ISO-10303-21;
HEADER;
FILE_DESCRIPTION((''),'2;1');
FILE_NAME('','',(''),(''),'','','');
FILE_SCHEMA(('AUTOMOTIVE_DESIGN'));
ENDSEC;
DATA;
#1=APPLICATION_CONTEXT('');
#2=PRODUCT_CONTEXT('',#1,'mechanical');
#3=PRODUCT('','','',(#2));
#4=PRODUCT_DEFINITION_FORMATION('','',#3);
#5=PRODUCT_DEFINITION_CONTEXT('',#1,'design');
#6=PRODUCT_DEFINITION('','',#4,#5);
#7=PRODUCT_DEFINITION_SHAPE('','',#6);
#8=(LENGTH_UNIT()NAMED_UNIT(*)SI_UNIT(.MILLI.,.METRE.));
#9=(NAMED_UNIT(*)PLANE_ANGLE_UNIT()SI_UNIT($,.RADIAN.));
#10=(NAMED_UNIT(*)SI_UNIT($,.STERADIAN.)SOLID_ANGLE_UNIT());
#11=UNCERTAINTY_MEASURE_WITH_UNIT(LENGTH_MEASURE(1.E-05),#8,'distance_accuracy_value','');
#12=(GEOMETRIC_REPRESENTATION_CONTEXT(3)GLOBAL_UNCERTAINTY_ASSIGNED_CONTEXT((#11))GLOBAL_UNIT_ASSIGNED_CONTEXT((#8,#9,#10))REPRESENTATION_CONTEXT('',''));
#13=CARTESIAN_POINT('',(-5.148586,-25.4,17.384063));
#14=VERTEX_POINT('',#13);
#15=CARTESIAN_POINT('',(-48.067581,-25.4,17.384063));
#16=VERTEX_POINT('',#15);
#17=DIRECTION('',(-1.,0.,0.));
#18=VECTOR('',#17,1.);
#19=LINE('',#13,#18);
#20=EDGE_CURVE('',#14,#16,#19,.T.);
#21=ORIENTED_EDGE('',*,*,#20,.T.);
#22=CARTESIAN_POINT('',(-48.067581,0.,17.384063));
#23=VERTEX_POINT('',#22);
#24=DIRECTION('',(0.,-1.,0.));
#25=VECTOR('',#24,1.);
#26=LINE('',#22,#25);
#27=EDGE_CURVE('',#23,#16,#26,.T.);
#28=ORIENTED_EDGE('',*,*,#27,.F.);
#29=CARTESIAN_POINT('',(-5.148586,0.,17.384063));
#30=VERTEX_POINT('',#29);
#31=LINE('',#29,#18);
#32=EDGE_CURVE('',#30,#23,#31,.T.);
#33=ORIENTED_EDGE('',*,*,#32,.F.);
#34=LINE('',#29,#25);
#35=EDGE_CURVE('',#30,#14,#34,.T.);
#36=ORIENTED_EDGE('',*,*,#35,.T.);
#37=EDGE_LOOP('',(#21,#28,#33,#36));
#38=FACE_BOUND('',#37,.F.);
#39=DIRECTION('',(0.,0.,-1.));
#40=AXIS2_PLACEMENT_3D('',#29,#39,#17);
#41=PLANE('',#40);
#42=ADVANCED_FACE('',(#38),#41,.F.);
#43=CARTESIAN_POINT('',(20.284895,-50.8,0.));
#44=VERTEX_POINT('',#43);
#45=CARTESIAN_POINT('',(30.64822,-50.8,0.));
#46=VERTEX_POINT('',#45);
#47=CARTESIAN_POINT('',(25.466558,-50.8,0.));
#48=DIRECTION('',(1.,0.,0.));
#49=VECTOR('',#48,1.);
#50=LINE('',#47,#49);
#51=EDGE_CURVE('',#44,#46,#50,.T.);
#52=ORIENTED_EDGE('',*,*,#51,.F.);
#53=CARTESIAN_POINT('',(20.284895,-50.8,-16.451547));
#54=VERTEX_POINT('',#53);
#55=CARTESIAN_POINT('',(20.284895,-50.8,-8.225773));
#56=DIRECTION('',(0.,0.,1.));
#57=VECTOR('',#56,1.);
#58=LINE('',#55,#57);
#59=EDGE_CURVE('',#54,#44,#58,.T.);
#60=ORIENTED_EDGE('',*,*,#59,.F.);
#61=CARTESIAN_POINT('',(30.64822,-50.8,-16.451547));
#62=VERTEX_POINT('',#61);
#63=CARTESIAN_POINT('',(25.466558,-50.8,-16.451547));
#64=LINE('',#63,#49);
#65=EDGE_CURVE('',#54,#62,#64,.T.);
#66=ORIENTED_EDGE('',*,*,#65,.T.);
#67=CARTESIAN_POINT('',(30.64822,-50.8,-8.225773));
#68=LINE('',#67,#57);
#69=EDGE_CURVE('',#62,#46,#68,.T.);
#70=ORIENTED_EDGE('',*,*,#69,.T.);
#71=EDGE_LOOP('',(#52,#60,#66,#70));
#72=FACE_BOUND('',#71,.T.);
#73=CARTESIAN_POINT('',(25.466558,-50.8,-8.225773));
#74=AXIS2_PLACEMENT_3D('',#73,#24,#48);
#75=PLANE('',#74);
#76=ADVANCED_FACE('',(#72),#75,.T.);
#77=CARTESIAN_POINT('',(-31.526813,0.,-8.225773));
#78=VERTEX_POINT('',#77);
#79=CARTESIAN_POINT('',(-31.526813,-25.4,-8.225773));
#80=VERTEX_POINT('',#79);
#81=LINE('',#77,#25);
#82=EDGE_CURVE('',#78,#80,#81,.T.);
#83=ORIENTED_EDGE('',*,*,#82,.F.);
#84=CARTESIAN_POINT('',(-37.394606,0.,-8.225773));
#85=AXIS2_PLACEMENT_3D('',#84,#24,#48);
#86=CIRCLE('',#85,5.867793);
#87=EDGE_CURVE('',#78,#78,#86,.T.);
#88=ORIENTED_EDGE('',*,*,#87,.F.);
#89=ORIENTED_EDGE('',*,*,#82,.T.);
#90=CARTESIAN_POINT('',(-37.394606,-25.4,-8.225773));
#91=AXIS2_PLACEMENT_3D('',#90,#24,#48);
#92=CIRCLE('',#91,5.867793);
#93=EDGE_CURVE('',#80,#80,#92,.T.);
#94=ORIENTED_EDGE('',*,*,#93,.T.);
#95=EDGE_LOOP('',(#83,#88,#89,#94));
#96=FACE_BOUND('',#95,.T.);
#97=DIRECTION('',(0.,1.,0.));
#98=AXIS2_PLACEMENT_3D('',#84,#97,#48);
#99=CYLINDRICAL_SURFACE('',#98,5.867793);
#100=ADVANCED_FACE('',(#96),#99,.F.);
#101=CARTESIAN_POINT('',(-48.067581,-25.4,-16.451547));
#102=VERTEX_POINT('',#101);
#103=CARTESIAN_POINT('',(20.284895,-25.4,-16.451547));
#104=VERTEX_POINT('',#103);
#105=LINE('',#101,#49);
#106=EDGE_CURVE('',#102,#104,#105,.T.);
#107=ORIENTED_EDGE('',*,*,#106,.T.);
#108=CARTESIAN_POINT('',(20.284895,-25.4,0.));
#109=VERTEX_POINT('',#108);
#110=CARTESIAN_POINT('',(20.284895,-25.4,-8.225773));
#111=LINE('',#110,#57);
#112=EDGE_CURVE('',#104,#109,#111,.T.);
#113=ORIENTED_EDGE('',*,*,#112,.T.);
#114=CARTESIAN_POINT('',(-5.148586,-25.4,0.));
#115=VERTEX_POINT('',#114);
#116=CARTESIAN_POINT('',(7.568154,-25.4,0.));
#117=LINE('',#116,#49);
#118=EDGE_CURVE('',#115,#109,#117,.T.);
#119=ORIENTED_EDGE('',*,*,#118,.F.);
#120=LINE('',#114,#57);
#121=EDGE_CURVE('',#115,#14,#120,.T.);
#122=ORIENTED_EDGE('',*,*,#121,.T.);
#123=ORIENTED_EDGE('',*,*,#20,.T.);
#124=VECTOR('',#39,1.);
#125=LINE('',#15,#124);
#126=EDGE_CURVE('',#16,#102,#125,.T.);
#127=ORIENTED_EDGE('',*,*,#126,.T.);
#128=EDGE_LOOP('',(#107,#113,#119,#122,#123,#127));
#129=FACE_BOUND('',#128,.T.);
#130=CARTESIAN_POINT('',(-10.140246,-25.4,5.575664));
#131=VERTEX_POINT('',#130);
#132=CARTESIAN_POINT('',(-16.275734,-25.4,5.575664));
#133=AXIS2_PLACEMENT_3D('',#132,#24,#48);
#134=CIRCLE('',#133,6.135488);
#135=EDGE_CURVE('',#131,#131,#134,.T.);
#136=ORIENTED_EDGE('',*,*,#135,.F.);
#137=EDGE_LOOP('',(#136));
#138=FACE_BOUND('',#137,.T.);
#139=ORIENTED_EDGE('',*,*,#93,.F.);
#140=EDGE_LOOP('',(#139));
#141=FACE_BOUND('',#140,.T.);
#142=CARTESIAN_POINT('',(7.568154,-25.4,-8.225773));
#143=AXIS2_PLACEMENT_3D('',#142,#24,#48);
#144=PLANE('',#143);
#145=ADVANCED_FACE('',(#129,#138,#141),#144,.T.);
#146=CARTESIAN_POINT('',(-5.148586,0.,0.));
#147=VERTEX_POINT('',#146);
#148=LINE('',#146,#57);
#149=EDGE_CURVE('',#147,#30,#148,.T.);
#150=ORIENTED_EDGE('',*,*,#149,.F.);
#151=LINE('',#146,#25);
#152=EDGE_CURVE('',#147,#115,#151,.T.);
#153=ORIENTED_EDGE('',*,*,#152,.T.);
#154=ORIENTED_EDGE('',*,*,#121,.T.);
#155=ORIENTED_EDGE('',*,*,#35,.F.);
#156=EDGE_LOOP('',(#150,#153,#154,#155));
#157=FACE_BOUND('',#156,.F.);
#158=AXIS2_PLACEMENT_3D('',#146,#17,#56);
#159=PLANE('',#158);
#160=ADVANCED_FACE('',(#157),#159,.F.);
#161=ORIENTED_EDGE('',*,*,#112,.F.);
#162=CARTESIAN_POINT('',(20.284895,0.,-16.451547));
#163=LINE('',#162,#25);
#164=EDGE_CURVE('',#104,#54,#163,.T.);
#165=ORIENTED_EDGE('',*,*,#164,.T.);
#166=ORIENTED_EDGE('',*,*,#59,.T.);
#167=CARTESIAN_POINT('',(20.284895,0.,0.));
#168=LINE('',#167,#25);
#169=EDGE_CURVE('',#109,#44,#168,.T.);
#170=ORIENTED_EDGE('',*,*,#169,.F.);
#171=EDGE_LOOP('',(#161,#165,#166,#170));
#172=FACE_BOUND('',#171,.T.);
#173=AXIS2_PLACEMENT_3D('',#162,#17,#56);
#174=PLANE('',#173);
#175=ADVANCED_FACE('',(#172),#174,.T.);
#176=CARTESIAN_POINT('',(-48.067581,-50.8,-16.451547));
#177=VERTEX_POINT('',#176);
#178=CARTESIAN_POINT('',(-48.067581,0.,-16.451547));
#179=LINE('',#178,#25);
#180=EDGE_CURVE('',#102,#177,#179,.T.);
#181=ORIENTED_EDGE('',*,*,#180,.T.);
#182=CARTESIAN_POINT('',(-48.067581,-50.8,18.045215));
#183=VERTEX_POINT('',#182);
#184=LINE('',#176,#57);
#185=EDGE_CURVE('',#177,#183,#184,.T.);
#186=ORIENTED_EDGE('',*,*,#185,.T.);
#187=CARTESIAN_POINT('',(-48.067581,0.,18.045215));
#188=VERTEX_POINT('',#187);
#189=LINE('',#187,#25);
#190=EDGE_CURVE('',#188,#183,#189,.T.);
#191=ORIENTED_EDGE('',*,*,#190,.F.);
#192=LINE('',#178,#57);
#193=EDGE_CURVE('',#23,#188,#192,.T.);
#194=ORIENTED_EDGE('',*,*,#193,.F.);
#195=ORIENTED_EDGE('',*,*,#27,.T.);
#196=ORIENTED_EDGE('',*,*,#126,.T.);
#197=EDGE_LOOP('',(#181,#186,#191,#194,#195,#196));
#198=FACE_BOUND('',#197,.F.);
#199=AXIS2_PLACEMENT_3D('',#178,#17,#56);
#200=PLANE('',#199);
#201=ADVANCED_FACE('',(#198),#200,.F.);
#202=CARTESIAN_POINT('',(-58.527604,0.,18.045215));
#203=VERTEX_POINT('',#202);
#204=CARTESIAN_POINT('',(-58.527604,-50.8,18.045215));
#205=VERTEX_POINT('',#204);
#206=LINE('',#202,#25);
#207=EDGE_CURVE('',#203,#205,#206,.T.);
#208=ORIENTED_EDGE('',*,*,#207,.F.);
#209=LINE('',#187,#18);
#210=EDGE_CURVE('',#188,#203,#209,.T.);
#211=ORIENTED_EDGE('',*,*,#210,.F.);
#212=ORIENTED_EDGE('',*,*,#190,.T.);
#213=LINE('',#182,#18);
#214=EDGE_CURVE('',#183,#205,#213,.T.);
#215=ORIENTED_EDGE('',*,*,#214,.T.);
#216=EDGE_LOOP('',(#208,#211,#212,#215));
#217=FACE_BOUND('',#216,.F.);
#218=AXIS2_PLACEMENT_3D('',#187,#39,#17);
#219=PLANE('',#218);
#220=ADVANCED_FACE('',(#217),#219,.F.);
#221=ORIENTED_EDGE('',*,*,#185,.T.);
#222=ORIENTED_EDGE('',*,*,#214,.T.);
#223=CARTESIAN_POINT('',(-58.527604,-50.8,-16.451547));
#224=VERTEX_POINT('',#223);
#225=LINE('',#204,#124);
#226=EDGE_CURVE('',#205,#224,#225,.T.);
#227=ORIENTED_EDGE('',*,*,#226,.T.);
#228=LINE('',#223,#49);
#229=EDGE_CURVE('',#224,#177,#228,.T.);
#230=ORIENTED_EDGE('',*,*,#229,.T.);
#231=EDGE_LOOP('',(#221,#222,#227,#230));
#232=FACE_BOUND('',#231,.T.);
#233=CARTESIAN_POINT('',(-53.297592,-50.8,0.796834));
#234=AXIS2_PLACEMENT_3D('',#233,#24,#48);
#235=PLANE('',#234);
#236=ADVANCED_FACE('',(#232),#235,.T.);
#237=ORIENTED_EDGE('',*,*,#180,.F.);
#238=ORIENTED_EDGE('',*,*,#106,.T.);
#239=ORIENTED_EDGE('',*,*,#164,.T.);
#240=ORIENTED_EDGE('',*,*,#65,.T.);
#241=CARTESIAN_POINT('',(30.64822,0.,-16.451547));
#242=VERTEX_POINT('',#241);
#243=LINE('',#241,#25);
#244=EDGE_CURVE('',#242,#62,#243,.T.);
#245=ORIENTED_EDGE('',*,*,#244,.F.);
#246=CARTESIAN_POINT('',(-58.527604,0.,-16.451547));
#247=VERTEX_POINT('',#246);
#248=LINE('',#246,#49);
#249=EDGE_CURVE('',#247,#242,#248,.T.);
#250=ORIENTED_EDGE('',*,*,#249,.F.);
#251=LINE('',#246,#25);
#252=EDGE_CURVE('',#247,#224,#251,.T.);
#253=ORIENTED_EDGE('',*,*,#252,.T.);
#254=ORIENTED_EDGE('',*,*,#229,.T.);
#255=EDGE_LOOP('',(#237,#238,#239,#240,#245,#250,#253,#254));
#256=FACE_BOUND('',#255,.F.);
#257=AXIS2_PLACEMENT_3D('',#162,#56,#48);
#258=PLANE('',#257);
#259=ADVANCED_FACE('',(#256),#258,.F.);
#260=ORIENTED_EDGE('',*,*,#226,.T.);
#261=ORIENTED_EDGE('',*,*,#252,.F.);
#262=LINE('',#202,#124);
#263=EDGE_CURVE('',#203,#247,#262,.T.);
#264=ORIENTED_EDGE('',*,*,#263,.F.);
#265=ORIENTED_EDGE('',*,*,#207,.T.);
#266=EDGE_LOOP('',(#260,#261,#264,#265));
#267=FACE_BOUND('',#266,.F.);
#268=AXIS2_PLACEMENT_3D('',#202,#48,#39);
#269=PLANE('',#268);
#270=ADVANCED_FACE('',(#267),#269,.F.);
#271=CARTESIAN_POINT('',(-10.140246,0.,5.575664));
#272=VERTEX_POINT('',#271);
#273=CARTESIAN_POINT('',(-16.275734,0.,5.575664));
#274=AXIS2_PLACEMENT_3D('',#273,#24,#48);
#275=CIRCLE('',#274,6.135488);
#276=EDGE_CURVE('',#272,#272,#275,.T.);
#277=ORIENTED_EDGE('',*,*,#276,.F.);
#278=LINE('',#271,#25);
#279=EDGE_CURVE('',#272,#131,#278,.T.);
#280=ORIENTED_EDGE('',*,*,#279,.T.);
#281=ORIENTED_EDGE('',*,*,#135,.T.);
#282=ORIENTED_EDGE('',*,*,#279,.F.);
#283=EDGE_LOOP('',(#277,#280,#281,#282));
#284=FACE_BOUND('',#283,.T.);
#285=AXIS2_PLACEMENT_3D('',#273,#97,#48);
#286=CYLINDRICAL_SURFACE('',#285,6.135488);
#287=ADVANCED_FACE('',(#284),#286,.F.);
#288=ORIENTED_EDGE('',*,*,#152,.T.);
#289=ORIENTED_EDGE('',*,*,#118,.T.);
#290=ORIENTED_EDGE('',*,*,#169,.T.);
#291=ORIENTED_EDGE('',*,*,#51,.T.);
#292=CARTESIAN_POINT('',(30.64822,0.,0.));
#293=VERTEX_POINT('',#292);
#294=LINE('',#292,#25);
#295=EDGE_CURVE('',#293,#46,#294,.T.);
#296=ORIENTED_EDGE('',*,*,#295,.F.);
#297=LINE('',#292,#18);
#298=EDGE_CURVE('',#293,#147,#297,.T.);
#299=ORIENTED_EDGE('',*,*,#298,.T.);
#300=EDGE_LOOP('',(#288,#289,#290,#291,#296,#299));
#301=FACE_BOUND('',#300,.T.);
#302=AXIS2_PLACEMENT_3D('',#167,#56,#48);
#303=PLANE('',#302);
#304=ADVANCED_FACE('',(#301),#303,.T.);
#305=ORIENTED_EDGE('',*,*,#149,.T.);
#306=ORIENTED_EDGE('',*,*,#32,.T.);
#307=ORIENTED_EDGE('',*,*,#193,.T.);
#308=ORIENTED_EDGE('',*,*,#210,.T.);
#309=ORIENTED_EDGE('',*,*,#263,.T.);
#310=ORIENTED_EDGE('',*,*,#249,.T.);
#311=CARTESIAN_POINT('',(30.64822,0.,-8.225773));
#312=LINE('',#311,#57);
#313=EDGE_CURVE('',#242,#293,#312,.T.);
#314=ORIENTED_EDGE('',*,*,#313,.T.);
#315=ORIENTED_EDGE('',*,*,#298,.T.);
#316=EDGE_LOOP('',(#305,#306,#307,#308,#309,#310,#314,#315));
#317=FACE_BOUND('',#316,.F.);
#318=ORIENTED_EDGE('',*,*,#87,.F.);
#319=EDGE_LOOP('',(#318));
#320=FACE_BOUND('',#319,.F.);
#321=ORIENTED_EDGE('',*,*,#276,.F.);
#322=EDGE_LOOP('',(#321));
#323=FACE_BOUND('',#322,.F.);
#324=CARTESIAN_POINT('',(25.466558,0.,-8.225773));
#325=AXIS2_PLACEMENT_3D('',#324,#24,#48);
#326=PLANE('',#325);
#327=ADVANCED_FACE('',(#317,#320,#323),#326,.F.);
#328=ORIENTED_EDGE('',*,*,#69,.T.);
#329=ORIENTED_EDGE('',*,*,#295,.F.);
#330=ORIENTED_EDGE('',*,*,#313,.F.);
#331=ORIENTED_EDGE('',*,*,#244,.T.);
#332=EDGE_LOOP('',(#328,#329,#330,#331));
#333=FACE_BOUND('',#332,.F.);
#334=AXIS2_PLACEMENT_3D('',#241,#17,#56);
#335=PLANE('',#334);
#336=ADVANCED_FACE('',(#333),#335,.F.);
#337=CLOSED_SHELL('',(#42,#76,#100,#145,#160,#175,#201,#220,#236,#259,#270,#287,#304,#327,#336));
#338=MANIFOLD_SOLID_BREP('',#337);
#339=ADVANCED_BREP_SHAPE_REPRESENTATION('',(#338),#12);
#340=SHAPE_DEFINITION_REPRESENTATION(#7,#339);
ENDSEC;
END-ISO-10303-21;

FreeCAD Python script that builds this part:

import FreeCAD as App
import Part
import Sketcher
from FreeCAD import Vector
Q = App.Units.Quantity


def add_polygon(sketch, points):
    """Adds a closed chain of lines whose ends are joined by coincident constraints."""
    first, n = sketch.GeometryCount, len(points)
    for a, b in zip(points, points[1:] + points[:1]):
        sketch.addGeometry(Part.LineSegment(App.Vector(*a, 0), App.Vector(*b, 0)), False)
    for i in range(n):
        sketch.addConstraint(Sketcher.Constraint("Coincident", first + i, 2, first + (i + 1) % n, 1))

doc = App.newDocument("Part")
body = doc.addObject("PartDesign::Body", "Body")

sketch1 = body.newObject("Sketcher::SketchObject", "Sketch")
sketch1.AttachmentSupport = (doc.getObject("XZ_Plane"), [""])
sketch1.MapMode = "FlatFace"
add_polygon(sketch1, [(20, -16), (20, 0), (-5, 0), (-5, 17), (-48, 17), (-48, -16)])
sketch1.addGeometry(Part.Circle(Vector(-37, -8, 0), Vector(0, 0, 1), 6), False)
sketch1.addGeometry(Part.Circle(Vector(-16, 6, 0), Vector(0, 0, 1), 6), False)
sketch1.addConstraint(Sketcher.Constraint("Vertical", 0))
sketch1.addConstraint(Sketcher.Constraint("Horizontal", 1))
sketch1.addConstraint(Sketcher.Constraint("Vertical", 2))
sketch1.addConstraint(Sketcher.Constraint("Horizontal", 3))
sketch1.addConstraint(Sketcher.Constraint("Vertical", 4))
sketch1.addConstraint(Sketcher.Constraint("Horizontal", 5))
sketch1.addConstraint(Sketcher.Constraint("PointOnObject", 0, 2, -1))
sketch1.addConstraint(Sketcher.Constraint("Diameter", 6, 11.735586))
sketch1.addConstraint(Sketcher.Constraint("Diameter", 7, 12.270975))
sketch1.addConstraint(Sketcher.Constraint("DistanceX", 1, 2, 1, 1, 25.433481))
sketch1.addConstraint(Sketcher.Constraint("DistanceY", 4, 2, 4, 1, 33.83561))
sketch1.addConstraint(Sketcher.Constraint("DistanceX", 6, 3, 0, 2, 57.6795))
sketch1.addConstraint(Sketcher.Constraint("DistanceY", 7, 3, 2, 2, 11.8084))
sketch1.addConstraint(Sketcher.Constraint("DistanceX", 3, 2, 3, 1, 42.918995))
sketch1.addConstraint(Sketcher.Constraint("DistanceY", 0, 1, 0, 2, 16.451547))
sketch1.addConstraint(Sketcher.Constraint("DistanceX", 3, 2, -1, 1, 48.067581))
sketch1.addConstraint(Sketcher.Constraint("DistanceX", 6, 3, 7, 3, 21.118872))
sketch1.addConstraint(Sketcher.Constraint("DistanceY", 6, 3, -1, 1, 8.225773))
pad1 = body.newObject("PartDesign::Pad", "Pad")
pad1.Profile = sketch1
pad1.Length = Q("1 in")

sketch2 = body.newObject("Sketcher::SketchObject", "Sketch001")
sketch2.AttachmentSupport = (doc.getObject("XZ_Plane"), [""])
sketch2.MapMode = "FlatFace"
add_polygon(sketch2, [(20, 0), (20, -16), (31, -16), (31, 0)])
add_polygon(sketch2, [(-48, -16), (-48, 18), (-59, 18), (-59, -16)])
sketch2.addConstraint(Sketcher.Constraint("Vertical", 0))
sketch2.addConstraint(Sketcher.Constraint("Horizontal", 1))
sketch2.addConstraint(Sketcher.Constraint("Vertical", 2))
sketch2.addConstraint(Sketcher.Constraint("Horizontal", 3))
sketch2.addConstraint(Sketcher.Constraint("Vertical", 4))
sketch2.addConstraint(Sketcher.Constraint("Horizontal", 5))
sketch2.addConstraint(Sketcher.Constraint("Vertical", 6))
sketch2.addConstraint(Sketcher.Constraint("Horizontal", 7))
sketch2.addConstraint(Sketcher.Constraint("PointOnObject", 2, 2, -1))
sketch2.addConstraint(Sketcher.Constraint("Horizontal", 1, 2, 6, 2))
sketch2.addConstraint(Sketcher.Constraint("DistanceY", 4, 1, 4, 2, 34.496762))
sketch2.addConstraint(Sketcher.Constraint("DistanceX", 4, 2, 2, 2, 78.715801))
sketch2.addConstraint(Sketcher.Constraint("DistanceX", 5, 2, 3, 2, 78.812499))
sketch2.addConstraint(Sketcher.Constraint("DistanceX", 1, 1, 1, 2, 10.363325))
sketch2.addConstraint(Sketcher.Constraint("DistanceY", 0, 2, 0, 1, 16.451547))
sketch2.addConstraint(Sketcher.Constraint("DistanceX", -1, 1, 1, 2, 30.64822))
pad2 = body.newObject("PartDesign::Pad", "Pad001")
pad2.Profile = sketch2
pad2.Length = Q("2 in")

doc.recompute()
